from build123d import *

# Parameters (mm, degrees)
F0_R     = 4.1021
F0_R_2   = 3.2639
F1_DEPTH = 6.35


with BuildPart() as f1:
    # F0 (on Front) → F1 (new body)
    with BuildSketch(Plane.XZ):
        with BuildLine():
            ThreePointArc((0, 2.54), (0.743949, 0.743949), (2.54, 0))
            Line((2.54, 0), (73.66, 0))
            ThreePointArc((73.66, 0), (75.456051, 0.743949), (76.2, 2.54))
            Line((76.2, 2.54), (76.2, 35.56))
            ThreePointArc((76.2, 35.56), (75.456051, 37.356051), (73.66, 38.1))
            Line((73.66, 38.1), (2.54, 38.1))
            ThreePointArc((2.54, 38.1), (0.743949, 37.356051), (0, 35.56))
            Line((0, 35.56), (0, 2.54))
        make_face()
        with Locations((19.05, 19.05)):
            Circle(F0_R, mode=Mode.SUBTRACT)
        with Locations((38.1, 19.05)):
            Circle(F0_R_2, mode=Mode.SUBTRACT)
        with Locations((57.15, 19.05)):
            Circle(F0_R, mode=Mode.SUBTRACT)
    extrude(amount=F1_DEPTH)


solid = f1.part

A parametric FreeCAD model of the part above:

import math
import FreeCAD as App
import Part
import Sketcher
Q = App.Units.Quantity

doc = App.newDocument("Part")
params = doc.addObject("Spreadsheet::Sheet", "Params")
for row, (alias, value) in enumerate([
    ("sketch1_radius", "0.1 in"),
    ("sketch1_diameter", "0.323 in"),
    ("sketch1_diameter2", "0.257 in"),
    ("sketch1_width", "2.8 in"),
    ("sketch1_height", "1.3 in"),
    ("pad1_length", "0.25 in"),
], start=1):
    params.set(f"A{row}", alias)
    params.set(f"B{row}", "=" + value)
    params.setAlias(f"B{row}", alias)

body = doc.addObject("PartDesign::Body", "Body")

sketch1 = body.newObject("Sketcher::SketchObject", "Sketch")
sketch1.AttachmentSupport = (doc.getObject("XZ_Plane"), [""])
sketch1.MapMode = "FlatFace"
sketch1.addGeometry([
    Part.ArcOfCircle(Part.Circle(App.Vector(2.5, 2.5, 0), App.Vector(0, 0, 1), 2.5), math.radians(-180), math.radians(-90)),
    Part.LineSegment(App.Vector(2.5, 0, 0), App.Vector(73.7, 0, 0)),
    Part.ArcOfCircle(Part.Circle(App.Vector(73.7, 2.5, 0), App.Vector(0, 0, 1), 2.5), math.radians(-90), math.radians(0)),
    Part.LineSegment(App.Vector(76.2, 2.5, 0), App.Vector(76.2, 35.6, 0)),
    Part.ArcOfCircle(Part.Circle(App.Vector(73.7, 35.6, 0), App.Vector(0, 0, 1), 2.5), math.radians(0), math.radians(90)),
    Part.LineSegment(App.Vector(73.7, 38.1, 0), App.Vector(2.5, 38.1, 0)),
    Part.ArcOfCircle(Part.Circle(App.Vector(2.5, 35.6, 0), App.Vector(0, 0, 1), 2.5), math.radians(90), math.radians(180)),
    Part.LineSegment(App.Vector(0, 35.6, 0), App.Vector(0, 2.5, 0)),
    Part.Circle(App.Vector(19.1, 19.1, 0), App.Vector(0, 0, 1), 4.1),
    Part.Circle(App.Vector(38.1, 19.1, 0), App.Vector(0, 0, 1), 3.3),
    Part.Circle(App.Vector(57.1, 19.1, 0), App.Vector(0, 0, 1), 4.1),
], False)
sketch1.addConstraint([
    Sketcher.Constraint("Tangent", 0, 2, 1, 1),
    Sketcher.Constraint("Tangent", 1, 2, 2, 1),
    Sketcher.Constraint("Tangent", 2, 2, 3, 1),
    Sketcher.Constraint("Tangent", 3, 2, 4, 1),
    Sketcher.Constraint("Tangent", 4, 2, 5, 1),
    Sketcher.Constraint("Tangent", 5, 2, 6, 1),
    Sketcher.Constraint("Tangent", 6, 2, 7, 1),
    Sketcher.Constraint("Tangent", 7, 2, 0, 1),
    Sketcher.Constraint("Horizontal", 1),
    Sketcher.Constraint("Vertical", 3),
    Sketcher.Constraint("Horizontal", 5),
    Sketcher.Constraint("Vertical", 7),
    Sketcher.Constraint("Equal", 0, 2),
    Sketcher.Constraint("Equal", 2, 4),
    Sketcher.Constraint("Equal", 4, 6),
    Sketcher.Constraint("Equal", 8, 10),
    Sketcher.Constraint("PointOnObject", 0, 2, -1),
    Sketcher.Constraint("PointOnObject", 6, 2, -2),
    Sketcher.Constraint("Horizontal", 8, 3, 9, 3),
    Sketcher.Constraint("Horizontal", 9, 3, 10, 3),
    Sketcher.Constraint("Radius", 0, Q("0.1 in")),
    Sketcher.Constraint("Diameter", 8, Q("0.323 in")),
    Sketcher.Constraint("Diameter", 9, Q("0.257 in")),
    Sketcher.Constraint("DistanceX", 1, 1, 1, 2, Q("2.8 in")),
    Sketcher.Constraint("DistanceY", 3, 1, 3, 2, Q("1.3 in")),
    Sketcher.Constraint("DistanceX", -1, 1, 9, 3, Q("1.5 in")),
    Sketcher.Constraint("DistanceX", 8, 3, 10, 3, Q("1.5 in")),
    Sketcher.Constraint("DistanceX", -1, 1, 8, 3, Q("0.75 in")),
    Sketcher.Constraint("DistanceY", -1, 1, 8, 3, Q("0.75 in")),
])
sketch1.setExpression("Constraints[20]", "Params.sketch1_radius")
sketch1.setExpression("Constraints[21]", "Params.sketch1_diameter")
sketch1.setExpression("Constraints[22]", "Params.sketch1_diameter2")
sketch1.setExpression("Constraints[23]", "Params.sketch1_width")
sketch1.setExpression("Constraints[24]", "Params.sketch1_height")
pad1 = body.newObject("PartDesign::Pad", "Pad")
pad1.Profile = sketch1
pad1.setExpression("Length", "Params.pad1_length")

doc.recompute()
